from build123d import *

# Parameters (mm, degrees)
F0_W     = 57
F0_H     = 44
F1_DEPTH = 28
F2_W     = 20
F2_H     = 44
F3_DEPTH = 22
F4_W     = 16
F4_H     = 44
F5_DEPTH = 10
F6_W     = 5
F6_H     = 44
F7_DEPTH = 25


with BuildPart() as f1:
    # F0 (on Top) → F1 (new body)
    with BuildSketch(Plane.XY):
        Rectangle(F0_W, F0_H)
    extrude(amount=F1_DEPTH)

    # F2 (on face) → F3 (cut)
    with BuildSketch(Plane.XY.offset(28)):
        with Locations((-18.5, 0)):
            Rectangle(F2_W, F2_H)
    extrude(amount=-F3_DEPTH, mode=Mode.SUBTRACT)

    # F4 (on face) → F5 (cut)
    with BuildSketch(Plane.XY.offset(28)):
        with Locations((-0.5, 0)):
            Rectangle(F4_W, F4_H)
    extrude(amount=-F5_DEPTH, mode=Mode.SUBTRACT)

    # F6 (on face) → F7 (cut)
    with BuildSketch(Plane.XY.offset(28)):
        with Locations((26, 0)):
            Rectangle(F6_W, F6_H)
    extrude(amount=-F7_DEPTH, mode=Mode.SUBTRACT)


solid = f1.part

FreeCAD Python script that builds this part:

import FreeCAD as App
import Part
import Sketcher
Q = App.Units.Quantity


def add_polygon(sketch, points):
    """Adds a closed chain of lines whose ends are joined by coincident constraints."""
    first, n = sketch.GeometryCount, len(points)
    for a, b in zip(points, points[1:] + points[:1]):
        sketch.addGeometry(Part.LineSegment(App.Vector(*a, 0), App.Vector(*b, 0)), False)
    for i in range(n):
        sketch.addConstraint(Sketcher.Constraint("Coincident", first + i, 2, first + (i + 1) % n, 1))

doc = App.newDocument("Part")
body = doc.addObject("PartDesign::Body", "Body")

sketch1 = body.newObject("Sketcher::SketchObject", "Sketch")
sketch1.AttachmentSupport = (doc.getObject("XY_Plane"), [""])
sketch1.MapMode = "FlatFace"
add_polygon(sketch1, [(-28, 22), (-28, -22), (28, -22), (28, 22)])
sketch1.addConstraint([
    Sketcher.Constraint("Vertical", 0),
    Sketcher.Constraint("Horizontal", 1),
    Sketcher.Constraint("Vertical", 2),
    Sketcher.Constraint("Horizontal", 3),
    Sketcher.Constraint("Symmetric", 0, 2, 2, 2, -1, 1),
    Sketcher.Constraint("DistanceX", 1, 1, 1, 2, Q("57 mm")),
    Sketcher.Constraint("DistanceY", 0, 2, 0, 1, Q("44 mm")),
])
pad1 = body.newObject("PartDesign::Pad", "Pad")
pad1.Profile = sketch1
pad1.Length = 28

sketch2 = body.newObject("Sketcher::SketchObject", "Sketch001")
sketch2.AttachmentSupport = (doc.getObject("XY_Plane"), [""])
sketch2.MapMode = "FlatFace"
sketch2.AttachmentOffset = App.Placement(App.Vector(0, 0, 28), App.Rotation())
add_polygon(sketch2, [(-28, 22), (-28, -22), (-8, -22), (-8, 22)])
sketch2.addConstraint([
    Sketcher.Constraint("Vertical", 0),
    Sketcher.Constraint("Horizontal", 1),
    Sketcher.Constraint("Vertical", 2),
    Sketcher.Constraint("Horizontal", 3),
    Sketcher.Constraint("DistanceX", 1, 1, 1, 2, Q("20 mm")),
    Sketcher.Constraint("DistanceY", 0, 2, 0, 1, Q("44 mm")),
    Sketcher.Constraint("DistanceY", 0, 2, -1, 1, Q("22 mm")),
    Sketcher.Constraint("DistanceX", 0, 2, -1, 1, Q("28.5 mm")),
])
pocket1 = body.newObject("PartDesign::Pocket", "Pocket")
pocket1.Profile = sketch2
pocket1.Length = 22

sketch3 = body.newObject("Sketcher::SketchObject", "Sketch002")
sketch3.AttachmentSupport = (doc.getObject("XY_Plane"), [""])
sketch3.MapMode = "FlatFace"
sketch3.AttachmentOffset = App.Placement(App.Vector(0, 0, 28), App.Rotation())
add_polygon(sketch3, [(-8, 22), (-8, -22), (8, -22), (8, 22)])
sketch3.addConstraint([
    Sketcher.Constraint("Vertical", 0),
    Sketcher.Constraint("Horizontal", 1),
    Sketcher.Constraint("Vertical", 2),
    Sketcher.Constraint("Horizontal", 3),
    Sketcher.Constraint("DistanceX", 1, 1, 1, 2, Q("16 mm")),
    Sketcher.Constraint("DistanceY", 0, 2, 0, 1, Q("44 mm")),
    Sketcher.Constraint("DistanceY", 0, 2, -1, 1, Q("22 mm")),
    Sketcher.Constraint("DistanceX", 0, 2, -1, 1, Q("8.5 mm")),
])
pocket2 = body.newObject("PartDesign::Pocket", "Pocket001")
pocket2.Profile = sketch3
pocket2.Length = 10

sketch4 = body.newObject("Sketcher::SketchObject", "Sketch003")
sketch4.AttachmentSupport = (doc.getObject("XY_Plane"), [""])
sketch4.MapMode = "FlatFace"
sketch4.AttachmentOffset = App.Placement(App.Vector(0, 0, 28), App.Rotation())
add_polygon(sketch4, [(24, 22), (24, -22), (28, -22), (28, 22)])
sketch4.addConstraint([
    Sketcher.Constraint("Vertical", 0),
    Sketcher.Constraint("Horizontal", 1),
    Sketcher.Constraint("Vertical", 2),
    Sketcher.Constraint("Horizontal", 3),
    Sketcher.Constraint("DistanceX", 1, 1, 1, 2, Q("5 mm")),
    Sketcher.Constraint("DistanceY", 0, 2, 0, 1, Q("44 mm")),
    Sketcher.Constraint("DistanceY", 0, 2, -1, 1, Q("22 mm")),
    Sketcher.Constraint("DistanceX", -1, 1, 0, 2, Q("23.5 mm")),
])
pocket3 = body.newObject("PartDesign::Pocket", "Pocket002")
pocket3.Profile = sketch4
pocket3.Length = 25

doc.recompute()
